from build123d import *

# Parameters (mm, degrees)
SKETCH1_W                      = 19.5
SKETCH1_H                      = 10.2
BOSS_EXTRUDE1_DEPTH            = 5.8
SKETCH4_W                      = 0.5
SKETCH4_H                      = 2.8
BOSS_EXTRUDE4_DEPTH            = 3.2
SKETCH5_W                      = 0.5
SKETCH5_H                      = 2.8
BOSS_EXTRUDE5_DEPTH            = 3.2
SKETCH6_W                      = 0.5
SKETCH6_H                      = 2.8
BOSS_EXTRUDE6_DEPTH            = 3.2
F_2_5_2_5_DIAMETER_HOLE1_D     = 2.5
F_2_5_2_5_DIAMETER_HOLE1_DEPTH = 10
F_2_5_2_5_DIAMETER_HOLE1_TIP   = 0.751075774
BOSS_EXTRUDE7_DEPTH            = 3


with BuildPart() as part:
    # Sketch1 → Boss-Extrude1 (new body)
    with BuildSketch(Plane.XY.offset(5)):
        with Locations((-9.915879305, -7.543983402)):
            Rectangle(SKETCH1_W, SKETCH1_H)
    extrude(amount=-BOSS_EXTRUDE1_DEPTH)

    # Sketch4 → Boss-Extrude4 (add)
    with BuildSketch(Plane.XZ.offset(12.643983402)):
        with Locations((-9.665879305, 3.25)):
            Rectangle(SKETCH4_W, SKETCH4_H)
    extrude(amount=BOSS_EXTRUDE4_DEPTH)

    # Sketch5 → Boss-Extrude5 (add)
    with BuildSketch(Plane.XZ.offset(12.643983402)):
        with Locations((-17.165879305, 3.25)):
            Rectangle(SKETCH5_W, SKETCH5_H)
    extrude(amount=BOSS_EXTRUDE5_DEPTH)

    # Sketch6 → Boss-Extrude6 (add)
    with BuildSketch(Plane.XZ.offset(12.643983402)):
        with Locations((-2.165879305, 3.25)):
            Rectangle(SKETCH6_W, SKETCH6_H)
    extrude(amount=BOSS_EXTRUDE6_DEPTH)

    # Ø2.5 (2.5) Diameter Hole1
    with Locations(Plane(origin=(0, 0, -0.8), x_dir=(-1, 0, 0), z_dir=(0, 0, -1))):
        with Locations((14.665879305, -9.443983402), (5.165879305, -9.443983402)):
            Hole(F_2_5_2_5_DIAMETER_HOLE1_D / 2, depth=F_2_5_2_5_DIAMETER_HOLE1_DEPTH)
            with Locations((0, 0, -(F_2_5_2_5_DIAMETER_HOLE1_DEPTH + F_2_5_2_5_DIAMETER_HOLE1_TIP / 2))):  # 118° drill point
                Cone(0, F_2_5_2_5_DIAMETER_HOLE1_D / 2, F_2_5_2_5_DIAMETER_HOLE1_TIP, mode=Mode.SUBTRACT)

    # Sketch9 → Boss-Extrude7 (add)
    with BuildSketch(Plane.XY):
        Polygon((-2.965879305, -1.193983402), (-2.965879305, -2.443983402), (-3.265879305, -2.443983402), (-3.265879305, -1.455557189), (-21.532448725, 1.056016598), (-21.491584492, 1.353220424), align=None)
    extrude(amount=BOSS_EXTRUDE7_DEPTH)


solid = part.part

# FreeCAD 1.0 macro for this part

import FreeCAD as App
import Part
import Sketcher
from FreeCAD import Vector


def add_polygon(sketch, points):
    """Adds a closed chain of lines whose ends are joined by coincident constraints."""
    first, n = sketch.GeometryCount, len(points)
    for a, b in zip(points, points[1:] + points[:1]):
        sketch.addGeometry(Part.LineSegment(App.Vector(*a, 0), App.Vector(*b, 0)), False)
    for i in range(n):
        sketch.addConstraint(Sketcher.Constraint("Coincident", first + i, 2, first + (i + 1) % n, 1))

doc = App.newDocument("Part")
params = doc.addObject("Spreadsheet::Sheet", "Params")
for row, (alias, value) in enumerate([
    ("sketch1_width", "19.5 mm"),
    ("sketch1_height", "10.2 mm"),
    ("pad1_length", "5.8 mm"),
    ("sketch2_width", "0.5 mm"),
    ("sketch2_height", "2.8 mm"),
    ("pad2_length", "3.2 mm"),
    ("sketch3_width", "0.5 mm"),
    ("sketch3_height", "2.8 mm"),
    ("pad3_length", "3.2 mm"),
    ("sketch4_width", "0.5 mm"),
    ("sketch4_height", "2.8 mm"),
    ("pad4_length", "3.2 mm"),
    ("sketch5_diameter", "2.5 mm"),
    ("hole_diameter", "2.5 mm"),
    ("hole_depth", "10 mm"),
    ("sketch6_width", "0.3 mm"),
    ("sketch6_length", "18.7 mm"),
    ("sketch6_length2", "0.3 mm"),
    ("sketch6_height", "1.25 mm"),
    ("pad5_length", "3 mm"),
], start=1):
    params.set(f"A{row}", alias)
    params.set(f"B{row}", "=" + value)
    params.setAlias(f"B{row}", alias)

body = doc.addObject("PartDesign::Body", "Body")

# Sketch on XY plane
sketch1 = body.newObject("Sketcher::SketchObject", "Sketch")
sketch1.AttachmentSupport = (doc.getObject("XY_Plane"), [""])
sketch1.MapMode = "FlatFace"
sketch1.AttachmentOffset = App.Placement(Vector(0, 0, 5), App.Rotation())
add_polygon(sketch1, [(-20, -2), (-20, -13), (0, -13), (0, -2)])  # lines 0-3
sketch1.addConstraint(Sketcher.Constraint("Vertical", 0))
sketch1.addConstraint(Sketcher.Constraint("Horizontal", 1))
sketch1.addConstraint(Sketcher.Constraint("Vertical", 2))
sketch1.addConstraint(Sketcher.Constraint("Horizontal", 3))
sketch1.addConstraint(Sketcher.Constraint("DistanceX", 1, 1, 1, 2, 19.5))
sketch1.addConstraint(Sketcher.Constraint("DistanceY", 0, 2, 0, 1, 10.2))
sketch1.addConstraint(Sketcher.Constraint("DistanceX", 0, 2, -1, 1, 19.665879))
sketch1.addConstraint(Sketcher.Constraint("DistanceY", 0, 2, -1, 1, 12.643983))
sketch1.setExpression("Constraints[8]", "Params.sketch1_width")
sketch1.setExpression("Constraints[9]", "Params.sketch1_height")
pad1 = body.newObject("PartDesign::Pad", "Pad")
pad1.Profile = sketch1
pad1.setExpression("Length", "Params.pad1_length")
pad1.Reversed = True

# Sketch on XZ plane
sketch2 = body.newObject("Sketcher::SketchObject", "Sketch001")
sketch2.AttachmentSupport = (doc.getObject("XZ_Plane"), [""])
sketch2.MapMode = "FlatFace"
sketch2.AttachmentOffset = App.Placement(Vector(0, 0, 12.643983), App.Rotation())
add_polygon(sketch2, [(-9.9, 4.7), (-9.9, 1.9), (-9.4, 1.9), (-9.4, 4.7)])  # lines 0-3
sketch2.addConstraint(Sketcher.Constraint("Vertical", 0))
sketch2.addConstraint(Sketcher.Constraint("Horizontal", 1))
sketch2.addConstraint(Sketcher.Constraint("Vertical", 2))
sketch2.addConstraint(Sketcher.Constraint("Horizontal", 3))
sketch2.addConstraint(Sketcher.Constraint("DistanceX", 1, 1, 1, 2, 0.5))
sketch2.addConstraint(Sketcher.Constraint("DistanceY", 0, 2, 0, 1, 2.8))
sketch2.addConstraint(Sketcher.Constraint("DistanceY", -1, 1, 0, 2, 1.85))
sketch2.addConstraint(Sketcher.Constraint("DistanceX", 0, 2, -1, 1, 9.915879))
sketch2.setExpression("Constraints[8]", "Params.sketch2_width")
sketch2.setExpression("Constraints[9]", "Params.sketch2_height")
pad2 = body.newObject("PartDesign::Pad", "Pad001")
pad2.Profile = sketch2
pad2.setExpression("Length", "Params.pad2_length")

# Sketch on XZ plane
sketch3 = body.newObject("Sketcher::SketchObject", "Sketch002")
sketch3.AttachmentSupport = (doc.getObject("XZ_Plane"), [""])
sketch3.MapMode = "FlatFace"
sketch3.AttachmentOffset = App.Placement(Vector(0, 0, 12.643983), App.Rotation())
add_polygon(sketch3, [(-17.4, 4.7), (-17.4, 1.9), (-16.9, 1.9), (-16.9, 4.7)])  # lines 0-3
sketch3.addConstraint(Sketcher.Constraint("Vertical", 0))
sketch3.addConstraint(Sketcher.Constraint("Horizontal", 1))
sketch3.addConstraint(Sketcher.Constraint("Vertical", 2))
sketch3.addConstraint(Sketcher.Constraint("Horizontal", 3))
sketch3.addConstraint(Sketcher.Constraint("DistanceX", 1, 1, 1, 2, 0.5))
sketch3.addConstraint(Sketcher.Constraint("DistanceY", 0, 2, 0, 1, 2.8))
sketch3.addConstraint(Sketcher.Constraint("DistanceY", -1, 1, 0, 2, 1.85))
sketch3.addConstraint(Sketcher.Constraint("DistanceX", 0, 2, -1, 1, 17.415879))
sketch3.setExpression("Constraints[8]", "Params.sketch3_width")
sketch3.setExpression("Constraints[9]", "Params.sketch3_height")
pad3 = body.newObject("PartDesign::Pad", "Pad002")
pad3.Profile = sketch3
pad3.setExpression("Length", "Params.pad3_length")

# Sketch on XZ plane
sketch4 = body.newObject("Sketcher::SketchObject", "Sketch003")
sketch4.AttachmentSupport = (doc.getObject("XZ_Plane"), [""])
sketch4.MapMode = "FlatFace"
sketch4.AttachmentOffset = App.Placement(Vector(0, 0, 12.643983), App.Rotation())
add_polygon(sketch4, [(-2.42, 4.65), (-2.42, 1.85), (-1.92, 1.85), (-1.92, 4.65)])  # lines 0-3
sketch4.addConstraint(Sketcher.Constraint("Vertical", 0))
sketch4.addConstraint(Sketcher.Constraint("Horizontal", 1))
sketch4.addConstraint(Sketcher.Constraint("Vertical", 2))
sketch4.addConstraint(Sketcher.Constraint("Horizontal", 3))
sketch4.addConstraint(Sketcher.Constraint("DistanceX", 1, 1, 1, 2, 0.5))
sketch4.addConstraint(Sketcher.Constraint("DistanceY", 0, 2, 0, 1, 2.8))
sketch4.addConstraint(Sketcher.Constraint("DistanceY", -1, 1, 0, 2, 1.85))
sketch4.addConstraint(Sketcher.Constraint("DistanceX", 0, 2, -1, 1, 2.415879))
sketch4.setExpression("Constraints[8]", "Params.sketch4_width")
sketch4.setExpression("Constraints[9]", "Params.sketch4_height")
pad4 = body.newObject("PartDesign::Pad", "Pad003")
pad4.Profile = sketch4
pad4.setExpression("Length", "Params.pad4_length")

# Sketch on XY plane
sketch5 = body.newObject("Sketcher::SketchObject", "Sketch004")
sketch5.AttachmentSupport = (doc.getObject("XY_Plane"), [""])
sketch5.MapMode = "FlatFace"
sketch5.AttachmentOffset = App.Placement(Vector(0, 0, -0.8), App.Rotation())
sketch5.addGeometry(Part.Circle(Vector(-14.7, -9.4, 0), Vector(0, 0, 1), 1.2), False)
sketch5.addGeometry(Part.Circle(Vector(-5.2, -9.4, 0), Vector(0, 0, 1), 1.2), False)
sketch5.addConstraint(Sketcher.Constraint("Equal", 0, 1))
sketch5.addConstraint(Sketcher.Constraint("Horizontal", 0, 3, 1, 3))
sketch5.addConstraint(Sketcher.Constraint("Diameter", 0, 2.5))
sketch5.addConstraint(Sketcher.Constraint("DistanceX", 0, 3, 1, 3, 9.5))
sketch5.addConstraint(Sketcher.Constraint("DistanceX", 0, 3, -1, 1, 14.665879))
sketch5.addConstraint(Sketcher.Constraint("DistanceY", 0, 3, -1, 1, 9.443983))
sketch5.setExpression("Constraints[2]", "Params.sketch5_diameter")
doc.recompute()
hole = body.newObject("PartDesign::Hole", "Hole")
hole.Profile = sketch5
hole.ThreadType = "None"
hole.setExpression("Diameter", "Params.hole_diameter")
hole.DepthType = "Dimension"
hole.setExpression("Depth", "Params.hole_depth")
hole.DrillPoint = "Angled"
hole.DrillPointAngle = 118
hole.Reversed = True

# Sketch on XY plane
sketch6 = body.newObject("Sketcher::SketchObject", "Sketch005")
sketch6.AttachmentSupport = (doc.getObject("XY_Plane"), [""])
sketch6.MapMode = "FlatFace"
add_polygon(sketch6, [(-2.97, -2.44), (-2.97, -1.19), (-21.49, 1.35), (-21.53, 1.06), (-3.27, -1.46), (-3.27, -2.44)])  # lines 0-5
sketch6.addConstraint(Sketcher.Constraint("Vertical", 0))
sketch6.addConstraint(Sketcher.Constraint("Vertical", 4))
sketch6.addConstraint(Sketcher.Constraint("Horizontal", 5))
sketch6.addConstraint(Sketcher.Constraint("Perpendicular", 1, 2))
sketch6.addConstraint(Sketcher.Constraint("Perpendicular", 2, 3))
sketch6.addConstraint(Sketcher.Constraint("DistanceX", 5, 1, 5, 2, 0.3))
sketch6.addConstraint(Sketcher.Constraint("Distance", 1, 18.7))
sketch6.addConstraint(Sketcher.Constraint("Distance", 2, 0.3))
sketch6.addConstraint(Sketcher.Constraint("DistanceY", 0, 1, 0, 2, 1.25))
sketch6.addConstraint(Sketcher.Constraint("DistanceY", 4, 2, 2, 2, 3.5))
sketch6.addConstraint(Sketcher.Constraint("DistanceX", 0, 2, -1, 1, 2.965879))
sketch6.addConstraint(Sketcher.Constraint("DistanceY", -1, 1, 1, 2, 1.35322))
sketch6.setExpression("Constraints[11]", "Params.sketch6_width")
sketch6.setExpression("Constraints[12]", "Params.sketch6_length")
sketch6.setExpression("Constraints[13]", "Params.sketch6_length2")
sketch6.setExpression("Constraints[14]", "Params.sketch6_height")
pad5 = body.newObject("PartDesign::Pad", "Pad004")
pad5.Profile = sketch6
pad5.setExpression("Length", "Params.pad5_length")

doc.recompute()
